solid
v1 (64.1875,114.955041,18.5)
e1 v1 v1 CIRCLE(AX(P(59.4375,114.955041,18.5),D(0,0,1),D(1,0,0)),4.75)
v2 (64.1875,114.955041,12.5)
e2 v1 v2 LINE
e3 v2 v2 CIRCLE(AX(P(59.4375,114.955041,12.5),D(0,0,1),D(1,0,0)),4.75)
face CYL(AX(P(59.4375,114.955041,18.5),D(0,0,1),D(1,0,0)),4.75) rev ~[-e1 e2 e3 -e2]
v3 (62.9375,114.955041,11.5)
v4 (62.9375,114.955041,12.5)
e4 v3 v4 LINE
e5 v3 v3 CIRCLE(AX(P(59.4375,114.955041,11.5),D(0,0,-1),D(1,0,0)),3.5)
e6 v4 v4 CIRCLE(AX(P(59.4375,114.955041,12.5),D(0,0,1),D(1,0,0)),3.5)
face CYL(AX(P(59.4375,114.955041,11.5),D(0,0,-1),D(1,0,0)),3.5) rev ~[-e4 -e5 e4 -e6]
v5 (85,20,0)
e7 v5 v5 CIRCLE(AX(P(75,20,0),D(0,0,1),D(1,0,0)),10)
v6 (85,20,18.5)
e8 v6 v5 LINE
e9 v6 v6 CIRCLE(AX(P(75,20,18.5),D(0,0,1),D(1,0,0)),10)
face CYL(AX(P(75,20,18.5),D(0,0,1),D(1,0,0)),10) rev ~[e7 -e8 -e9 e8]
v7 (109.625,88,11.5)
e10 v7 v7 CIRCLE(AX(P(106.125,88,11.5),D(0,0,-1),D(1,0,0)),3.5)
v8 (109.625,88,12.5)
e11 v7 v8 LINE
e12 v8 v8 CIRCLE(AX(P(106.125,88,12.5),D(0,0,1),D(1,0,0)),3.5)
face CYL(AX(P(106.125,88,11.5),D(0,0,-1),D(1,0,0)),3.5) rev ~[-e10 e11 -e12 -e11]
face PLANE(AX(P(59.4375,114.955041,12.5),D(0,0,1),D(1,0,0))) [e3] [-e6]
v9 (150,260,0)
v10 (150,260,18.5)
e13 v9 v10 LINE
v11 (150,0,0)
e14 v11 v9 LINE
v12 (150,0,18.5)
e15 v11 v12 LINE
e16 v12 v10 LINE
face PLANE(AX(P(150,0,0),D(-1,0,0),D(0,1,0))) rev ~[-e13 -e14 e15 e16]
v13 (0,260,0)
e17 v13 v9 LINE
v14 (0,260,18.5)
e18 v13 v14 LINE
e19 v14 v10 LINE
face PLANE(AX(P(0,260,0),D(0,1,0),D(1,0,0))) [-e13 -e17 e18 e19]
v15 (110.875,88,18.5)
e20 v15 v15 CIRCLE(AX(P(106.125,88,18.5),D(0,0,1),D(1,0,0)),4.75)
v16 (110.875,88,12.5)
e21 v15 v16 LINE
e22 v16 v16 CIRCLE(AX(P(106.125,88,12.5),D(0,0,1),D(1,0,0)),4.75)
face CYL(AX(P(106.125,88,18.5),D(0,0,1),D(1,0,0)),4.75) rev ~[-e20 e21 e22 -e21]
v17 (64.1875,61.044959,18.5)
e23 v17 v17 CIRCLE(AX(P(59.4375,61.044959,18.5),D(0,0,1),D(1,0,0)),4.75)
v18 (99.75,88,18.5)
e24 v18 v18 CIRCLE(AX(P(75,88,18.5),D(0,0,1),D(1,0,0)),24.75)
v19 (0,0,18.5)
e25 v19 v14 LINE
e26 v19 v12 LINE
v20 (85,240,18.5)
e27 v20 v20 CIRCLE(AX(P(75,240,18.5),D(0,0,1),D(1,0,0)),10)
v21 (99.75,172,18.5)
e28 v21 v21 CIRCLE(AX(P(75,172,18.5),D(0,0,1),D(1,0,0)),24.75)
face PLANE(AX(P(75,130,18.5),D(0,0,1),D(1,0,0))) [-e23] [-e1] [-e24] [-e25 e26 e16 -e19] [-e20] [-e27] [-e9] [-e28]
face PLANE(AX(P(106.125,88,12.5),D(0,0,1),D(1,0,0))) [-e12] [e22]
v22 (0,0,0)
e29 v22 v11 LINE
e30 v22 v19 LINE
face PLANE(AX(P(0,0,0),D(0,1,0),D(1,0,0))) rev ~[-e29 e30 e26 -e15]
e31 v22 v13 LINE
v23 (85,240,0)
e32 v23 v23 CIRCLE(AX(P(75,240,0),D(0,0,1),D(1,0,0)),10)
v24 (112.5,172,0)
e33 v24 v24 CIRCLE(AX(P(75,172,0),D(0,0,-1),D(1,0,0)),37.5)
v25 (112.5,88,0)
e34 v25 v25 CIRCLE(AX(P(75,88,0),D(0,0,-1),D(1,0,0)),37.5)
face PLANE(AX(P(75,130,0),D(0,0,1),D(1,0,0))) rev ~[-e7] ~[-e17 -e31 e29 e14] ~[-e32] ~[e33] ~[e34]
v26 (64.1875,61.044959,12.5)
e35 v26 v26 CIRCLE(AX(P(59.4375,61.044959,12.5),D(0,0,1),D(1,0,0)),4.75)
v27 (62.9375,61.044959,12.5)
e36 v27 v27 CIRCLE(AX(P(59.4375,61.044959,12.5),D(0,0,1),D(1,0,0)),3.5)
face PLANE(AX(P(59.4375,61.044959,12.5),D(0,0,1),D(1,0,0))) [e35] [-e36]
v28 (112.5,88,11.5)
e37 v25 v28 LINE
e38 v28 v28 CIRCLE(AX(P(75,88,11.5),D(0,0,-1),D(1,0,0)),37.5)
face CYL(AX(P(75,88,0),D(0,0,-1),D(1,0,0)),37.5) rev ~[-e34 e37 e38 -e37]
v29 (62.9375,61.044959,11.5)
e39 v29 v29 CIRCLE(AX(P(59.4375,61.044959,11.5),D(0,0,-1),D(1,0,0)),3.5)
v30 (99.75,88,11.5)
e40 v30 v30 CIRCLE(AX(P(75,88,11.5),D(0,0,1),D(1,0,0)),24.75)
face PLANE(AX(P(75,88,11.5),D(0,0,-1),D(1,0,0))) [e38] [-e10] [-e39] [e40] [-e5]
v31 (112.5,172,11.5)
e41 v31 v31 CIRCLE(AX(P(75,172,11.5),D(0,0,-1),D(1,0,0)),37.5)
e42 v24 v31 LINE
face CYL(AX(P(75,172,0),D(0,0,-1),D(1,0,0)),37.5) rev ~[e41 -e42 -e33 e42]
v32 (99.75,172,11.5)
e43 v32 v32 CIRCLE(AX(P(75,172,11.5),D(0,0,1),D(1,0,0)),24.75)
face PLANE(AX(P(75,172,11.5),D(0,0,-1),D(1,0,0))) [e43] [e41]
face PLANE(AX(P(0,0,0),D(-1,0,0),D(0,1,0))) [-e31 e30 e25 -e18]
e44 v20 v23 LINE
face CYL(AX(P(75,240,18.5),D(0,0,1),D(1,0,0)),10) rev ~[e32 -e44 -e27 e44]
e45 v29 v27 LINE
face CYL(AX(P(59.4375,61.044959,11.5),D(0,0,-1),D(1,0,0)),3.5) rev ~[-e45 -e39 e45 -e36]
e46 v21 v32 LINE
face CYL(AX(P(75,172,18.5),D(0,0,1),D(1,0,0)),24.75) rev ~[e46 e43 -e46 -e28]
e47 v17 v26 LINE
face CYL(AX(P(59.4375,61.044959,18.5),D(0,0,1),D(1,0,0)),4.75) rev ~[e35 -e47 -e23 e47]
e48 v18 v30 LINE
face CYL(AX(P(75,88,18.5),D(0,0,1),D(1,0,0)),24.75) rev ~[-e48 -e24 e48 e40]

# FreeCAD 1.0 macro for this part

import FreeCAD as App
import Part
import Sketcher
from FreeCAD import Vector

doc = App.newDocument("Part")
body = doc.addObject("PartDesign::Body", "Body")

# Sketch on XY plane
sketch1 = body.newObject("Sketcher::SketchObject", "Sketch")
sketch1.AttachmentSupport = (doc.getObject("XY_Plane"), [""])
sketch1.MapMode = "FlatFace"
sketch1.addGeometry(Part.LineSegment(Vector(0, 260, 0), Vector(0, 0, 0)), False)
sketch1.addGeometry(Part.LineSegment(Vector(0, 0, 0), Vector(150, 0, 0)), False)
sketch1.addGeometry(Part.LineSegment(Vector(150, 0, 0), Vector(150, 260, 0)), False)
sketch1.addGeometry(Part.LineSegment(Vector(150, 260, 0), Vector(0, 260, 0)), False)
sketch1.addConstraint(Sketcher.Constraint("Coincident", 0, 2, 1, 1))
sketch1.addConstraint(Sketcher.Constraint("Coincident", 1, 2, 2, 1))
sketch1.addConstraint(Sketcher.Constraint("Coincident", 2, 2, 3, 1))
sketch1.addConstraint(Sketcher.Constraint("Coincident", 3, 2, 0, 1))
sketch1.addConstraint(Sketcher.Constraint("Vertical", 0))
sketch1.addConstraint(Sketcher.Constraint("Horizontal", 1))
sketch1.addConstraint(Sketcher.Constraint("Vertical", 2))
sketch1.addConstraint(Sketcher.Constraint("Horizontal", 3))
sketch1.addConstraint(Sketcher.Constraint("Coincident", 0, 2, -1, 1))
sketch1.addConstraint(Sketcher.Constraint("DistanceX", 1, 1, 1, 2, 150.0))
sketch1.addConstraint(Sketcher.Constraint("DistanceY", 0, 2, 0, 1, 260.0))
pad1 = body.newObject("PartDesign::Pad", "Pad")
pad1.Profile = sketch1
pad1.Length = 18.5

# Sketch on XY plane
sketch2 = body.newObject("Sketcher::SketchObject", "Sketch001")
sketch2.AttachmentSupport = (doc.getObject("XY_Plane"), [""])
sketch2.MapMode = "FlatFace"
sketch2.AttachmentOffset = App.Placement(Vector(0, 0, 18.5), App.Rotation())
sketch2.addGeometry(Part.Circle(Vector(75, 240, 0), Vector(0, 0, 1), 10), False)
sketch2.addGeometry(Part.Circle(Vector(75, 20, 0), Vector(0, 0, 1), 10), False)
sketch2.addConstraint(Sketcher.Constraint("Equal", 0, 1))
sketch2.addConstraint(Sketcher.Constraint("Vertical", 0, 3, 1, 3))
sketch2.addConstraint(Sketcher.Constraint("Diameter", 0, 20.0))
sketch2.addConstraint(Sketcher.Constraint("DistanceX", -1, 1, 0, 3, 75.0))
sketch2.addConstraint(Sketcher.Constraint("DistanceY", -1, 1, 0, 3, 240.0))
sketch2.addConstraint(Sketcher.Constraint("DistanceY", -1, 1, 1, 3, 20.0))
pocket1 = body.newObject("PartDesign::Pocket", "Pocket")
pocket1.Profile = sketch2
pocket1.Length = 25.4

# Sketch on XY plane
sketch3 = body.newObject("Sketcher::SketchObject", "Sketch002")
sketch3.AttachmentSupport = (doc.getObject("XY_Plane"), [""])
sketch3.MapMode = "FlatFace"
sketch3.AttachmentOffset = App.Placement(Vector(0, 0, 18.5), App.Rotation())
sketch3.addGeometry(Part.Circle(Vector(75, 172, 0), Vector(0, 0, 1), 25), False)
sketch3.addGeometry(Part.Circle(Vector(75, 88, 0), Vector(0, 0, 1), 25), False)
sketch3.addConstraint(Sketcher.Constraint("Equal", 0, 1))
sketch3.addConstraint(Sketcher.Constraint("Vertical", 0, 3, 1, 3))
sketch3.addConstraint(Sketcher.Constraint("Diameter", 0, 49.5))
sketch3.addConstraint(Sketcher.Constraint("DistanceX", -1, 1, 0, 3, 75.0))
sketch3.addConstraint(Sketcher.Constraint("DistanceY", -1, 1, 0, 3, 172.0))
sketch3.addConstraint(Sketcher.Constraint("DistanceY", -1, 1, 1, 3, 88.0))
pocket2 = body.newObject("PartDesign::Pocket", "Pocket001")
pocket2.Profile = sketch3
pocket2.Length = 25.4

# Sketch on XY plane
sketch4 = body.newObject("Sketcher::SketchObject", "Sketch003")
sketch4.AttachmentSupport = (doc.getObject("XY_Plane"), [""])
sketch4.MapMode = "FlatFace"
sketch4.addGeometry(Part.Circle(Vector(75, 88, 0), Vector(0, 0, 1), 38), False)
sketch4.addGeometry(Part.Circle(Vector(75, 172, 0), Vector(0, 0, 1), 38), False)
sketch4.addConstraint(Sketcher.Constraint("Equal", 0, 1))
sketch4.addConstraint(Sketcher.Constraint("Vertical", 0, 3, 1, 3))
sketch4.addConstraint(Sketcher.Constraint("Diameter", 0, 75.0))
sketch4.addConstraint(Sketcher.Constraint("DistanceX", -1, 1, 0, 3, 75.0))
sketch4.addConstraint(Sketcher.Constraint("DistanceY", -1, 1, 0, 3, 88.0))
sketch4.addConstraint(Sketcher.Constraint("DistanceY", -1, 1, 1, 3, 172.0))
pocket3 = body.newObject("PartDesign::Pocket", "Pocket002")
pocket3.Profile = sketch4
pocket3.Length = 11.5
pocket3.Reversed = True

# Sketch on XY plane
sketch5 = body.newObject("Sketcher::SketchObject", "Sketch004")
sketch5.AttachmentSupport = (doc.getObject("XY_Plane"), [""])
sketch5.MapMode = "FlatFace"
sketch5.AttachmentOffset = App.Placement(Vector(0, 0, 11.5), App.Rotation())
sketch5.addGeometry(Part.Circle(Vector(106.1, 88, 0), Vector(0, 0, 1), 3.5), False)
sketch5.addGeometry(Part.Circle(Vector(59.4, 61, 0), Vector(0, 0, 1), 3.5), False)
sketch5.addGeometry(Part.Circle(Vector(59.4, 115, 0), Vector(0, 0, 1), 3.5), False)
sketch5.addConstraint(Sketcher.Constraint("Equal", 0, 1))
sketch5.addConstraint(Sketcher.Constraint("Equal", 1, 2))
sketch5.addConstraint(Sketcher.Constraint("Vertical", 1, 3, 2, 3))
sketch5.addConstraint(Sketcher.Constraint("Diameter", 0, 7.0))
sketch5.addConstraint(Sketcher.Constraint("DistanceY", -1, 1, 0, 3, 88.0))
sketch5.addConstraint(Sketcher.Constraint("DistanceX", -1, 1, 0, 3, 106.125))
sketch5.addConstraint(Sketcher.Constraint("DistanceX", -1, 1, 1, 3, 59.4375))
sketch5.addConstraint(Sketcher.Constraint("DistanceY", -1, 1, 1, 3, 61.044959))
sketch5.addConstraint(Sketcher.Constraint("DistanceY", -1, 1, 2, 3, 114.955041))
pocket4 = body.newObject("PartDesign::Pocket", "Pocket003")
pocket4.Profile = sketch5
pocket4.Length = 25.4
pocket4.Reversed = True

# Sketch on XY plane
sketch6 = body.newObject("Sketcher::SketchObject", "Sketch005")
sketch6.AttachmentSupport = (doc.getObject("XY_Plane"), [""])
sketch6.MapMode = "FlatFace"
sketch6.AttachmentOffset = App.Placement(Vector(0, 0, 18.5), App.Rotation())
sketch6.addGeometry(Part.Circle(Vector(59.4, 61, 0), Vector(0, 0, 1), 4.8), False)
sketch6.addGeometry(Part.Circle(Vector(59.4, 61, 0), Vector(0, 0, 1), 3.5), False)
sketch6.addGeometry(Part.Circle(Vector(59.4, 115, 0), Vector(0, 0, 1), 4.8), False)
sketch6.addGeometry(Part.Circle(Vector(59.4, 115, 0), Vector(0, 0, 1), 3.5), False)
sketch6.addGeometry(Part.Circle(Vector(106.1, 88, 0), Vector(0, 0, 1), 4.8), False)
sketch6.addGeometry(Part.Circle(Vector(106.1, 88, 0), Vector(0, 0, 1), 3.5), False)
sketch6.addConstraint(Sketcher.Constraint("Coincident", 1, 3, 0, 3))
sketch6.addConstraint(Sketcher.Constraint("Coincident", 3, 3, 2, 3))
sketch6.addConstraint(Sketcher.Constraint("Coincident", 5, 3, 4, 3))
sketch6.addConstraint(Sketcher.Constraint("Equal", 0, 2))
sketch6.addConstraint(Sketcher.Constraint("Equal", 1, 3))
sketch6.addConstraint(Sketcher.Constraint("Equal", 2, 4))
sketch6.addConstraint(Sketcher.Constraint("Equal", 3, 5))
sketch6.addConstraint(Sketcher.Constraint("Vertical", 1, 3, 2, 3))
sketch6.addConstraint(Sketcher.Constraint("Diameter", 1, 7.0))
sketch6.addConstraint(Sketcher.Constraint("Diameter", 0, 9.5))
sketch6.addConstraint(Sketcher.Constraint("DistanceY", -1, 1, 4, 3, 88.0))
sketch6.addConstraint(Sketcher.Constraint("DistanceX", -1, 1, 4, 3, 106.125))
sketch6.addConstraint(Sketcher.Constraint("DistanceX", -1, 1, 0, 3, 59.4375))
sketch6.addConstraint(Sketcher.Constraint("DistanceY", -1, 1, 0, 3, 61.044959))
sketch6.addConstraint(Sketcher.Constraint("DistanceY", -1, 1, 2, 3, 114.955041))
pocket5 = body.newObject("PartDesign::Pocket", "Pocket004")
pocket5.Profile = sketch6
pocket5.Length = 6

doc.recompute()
